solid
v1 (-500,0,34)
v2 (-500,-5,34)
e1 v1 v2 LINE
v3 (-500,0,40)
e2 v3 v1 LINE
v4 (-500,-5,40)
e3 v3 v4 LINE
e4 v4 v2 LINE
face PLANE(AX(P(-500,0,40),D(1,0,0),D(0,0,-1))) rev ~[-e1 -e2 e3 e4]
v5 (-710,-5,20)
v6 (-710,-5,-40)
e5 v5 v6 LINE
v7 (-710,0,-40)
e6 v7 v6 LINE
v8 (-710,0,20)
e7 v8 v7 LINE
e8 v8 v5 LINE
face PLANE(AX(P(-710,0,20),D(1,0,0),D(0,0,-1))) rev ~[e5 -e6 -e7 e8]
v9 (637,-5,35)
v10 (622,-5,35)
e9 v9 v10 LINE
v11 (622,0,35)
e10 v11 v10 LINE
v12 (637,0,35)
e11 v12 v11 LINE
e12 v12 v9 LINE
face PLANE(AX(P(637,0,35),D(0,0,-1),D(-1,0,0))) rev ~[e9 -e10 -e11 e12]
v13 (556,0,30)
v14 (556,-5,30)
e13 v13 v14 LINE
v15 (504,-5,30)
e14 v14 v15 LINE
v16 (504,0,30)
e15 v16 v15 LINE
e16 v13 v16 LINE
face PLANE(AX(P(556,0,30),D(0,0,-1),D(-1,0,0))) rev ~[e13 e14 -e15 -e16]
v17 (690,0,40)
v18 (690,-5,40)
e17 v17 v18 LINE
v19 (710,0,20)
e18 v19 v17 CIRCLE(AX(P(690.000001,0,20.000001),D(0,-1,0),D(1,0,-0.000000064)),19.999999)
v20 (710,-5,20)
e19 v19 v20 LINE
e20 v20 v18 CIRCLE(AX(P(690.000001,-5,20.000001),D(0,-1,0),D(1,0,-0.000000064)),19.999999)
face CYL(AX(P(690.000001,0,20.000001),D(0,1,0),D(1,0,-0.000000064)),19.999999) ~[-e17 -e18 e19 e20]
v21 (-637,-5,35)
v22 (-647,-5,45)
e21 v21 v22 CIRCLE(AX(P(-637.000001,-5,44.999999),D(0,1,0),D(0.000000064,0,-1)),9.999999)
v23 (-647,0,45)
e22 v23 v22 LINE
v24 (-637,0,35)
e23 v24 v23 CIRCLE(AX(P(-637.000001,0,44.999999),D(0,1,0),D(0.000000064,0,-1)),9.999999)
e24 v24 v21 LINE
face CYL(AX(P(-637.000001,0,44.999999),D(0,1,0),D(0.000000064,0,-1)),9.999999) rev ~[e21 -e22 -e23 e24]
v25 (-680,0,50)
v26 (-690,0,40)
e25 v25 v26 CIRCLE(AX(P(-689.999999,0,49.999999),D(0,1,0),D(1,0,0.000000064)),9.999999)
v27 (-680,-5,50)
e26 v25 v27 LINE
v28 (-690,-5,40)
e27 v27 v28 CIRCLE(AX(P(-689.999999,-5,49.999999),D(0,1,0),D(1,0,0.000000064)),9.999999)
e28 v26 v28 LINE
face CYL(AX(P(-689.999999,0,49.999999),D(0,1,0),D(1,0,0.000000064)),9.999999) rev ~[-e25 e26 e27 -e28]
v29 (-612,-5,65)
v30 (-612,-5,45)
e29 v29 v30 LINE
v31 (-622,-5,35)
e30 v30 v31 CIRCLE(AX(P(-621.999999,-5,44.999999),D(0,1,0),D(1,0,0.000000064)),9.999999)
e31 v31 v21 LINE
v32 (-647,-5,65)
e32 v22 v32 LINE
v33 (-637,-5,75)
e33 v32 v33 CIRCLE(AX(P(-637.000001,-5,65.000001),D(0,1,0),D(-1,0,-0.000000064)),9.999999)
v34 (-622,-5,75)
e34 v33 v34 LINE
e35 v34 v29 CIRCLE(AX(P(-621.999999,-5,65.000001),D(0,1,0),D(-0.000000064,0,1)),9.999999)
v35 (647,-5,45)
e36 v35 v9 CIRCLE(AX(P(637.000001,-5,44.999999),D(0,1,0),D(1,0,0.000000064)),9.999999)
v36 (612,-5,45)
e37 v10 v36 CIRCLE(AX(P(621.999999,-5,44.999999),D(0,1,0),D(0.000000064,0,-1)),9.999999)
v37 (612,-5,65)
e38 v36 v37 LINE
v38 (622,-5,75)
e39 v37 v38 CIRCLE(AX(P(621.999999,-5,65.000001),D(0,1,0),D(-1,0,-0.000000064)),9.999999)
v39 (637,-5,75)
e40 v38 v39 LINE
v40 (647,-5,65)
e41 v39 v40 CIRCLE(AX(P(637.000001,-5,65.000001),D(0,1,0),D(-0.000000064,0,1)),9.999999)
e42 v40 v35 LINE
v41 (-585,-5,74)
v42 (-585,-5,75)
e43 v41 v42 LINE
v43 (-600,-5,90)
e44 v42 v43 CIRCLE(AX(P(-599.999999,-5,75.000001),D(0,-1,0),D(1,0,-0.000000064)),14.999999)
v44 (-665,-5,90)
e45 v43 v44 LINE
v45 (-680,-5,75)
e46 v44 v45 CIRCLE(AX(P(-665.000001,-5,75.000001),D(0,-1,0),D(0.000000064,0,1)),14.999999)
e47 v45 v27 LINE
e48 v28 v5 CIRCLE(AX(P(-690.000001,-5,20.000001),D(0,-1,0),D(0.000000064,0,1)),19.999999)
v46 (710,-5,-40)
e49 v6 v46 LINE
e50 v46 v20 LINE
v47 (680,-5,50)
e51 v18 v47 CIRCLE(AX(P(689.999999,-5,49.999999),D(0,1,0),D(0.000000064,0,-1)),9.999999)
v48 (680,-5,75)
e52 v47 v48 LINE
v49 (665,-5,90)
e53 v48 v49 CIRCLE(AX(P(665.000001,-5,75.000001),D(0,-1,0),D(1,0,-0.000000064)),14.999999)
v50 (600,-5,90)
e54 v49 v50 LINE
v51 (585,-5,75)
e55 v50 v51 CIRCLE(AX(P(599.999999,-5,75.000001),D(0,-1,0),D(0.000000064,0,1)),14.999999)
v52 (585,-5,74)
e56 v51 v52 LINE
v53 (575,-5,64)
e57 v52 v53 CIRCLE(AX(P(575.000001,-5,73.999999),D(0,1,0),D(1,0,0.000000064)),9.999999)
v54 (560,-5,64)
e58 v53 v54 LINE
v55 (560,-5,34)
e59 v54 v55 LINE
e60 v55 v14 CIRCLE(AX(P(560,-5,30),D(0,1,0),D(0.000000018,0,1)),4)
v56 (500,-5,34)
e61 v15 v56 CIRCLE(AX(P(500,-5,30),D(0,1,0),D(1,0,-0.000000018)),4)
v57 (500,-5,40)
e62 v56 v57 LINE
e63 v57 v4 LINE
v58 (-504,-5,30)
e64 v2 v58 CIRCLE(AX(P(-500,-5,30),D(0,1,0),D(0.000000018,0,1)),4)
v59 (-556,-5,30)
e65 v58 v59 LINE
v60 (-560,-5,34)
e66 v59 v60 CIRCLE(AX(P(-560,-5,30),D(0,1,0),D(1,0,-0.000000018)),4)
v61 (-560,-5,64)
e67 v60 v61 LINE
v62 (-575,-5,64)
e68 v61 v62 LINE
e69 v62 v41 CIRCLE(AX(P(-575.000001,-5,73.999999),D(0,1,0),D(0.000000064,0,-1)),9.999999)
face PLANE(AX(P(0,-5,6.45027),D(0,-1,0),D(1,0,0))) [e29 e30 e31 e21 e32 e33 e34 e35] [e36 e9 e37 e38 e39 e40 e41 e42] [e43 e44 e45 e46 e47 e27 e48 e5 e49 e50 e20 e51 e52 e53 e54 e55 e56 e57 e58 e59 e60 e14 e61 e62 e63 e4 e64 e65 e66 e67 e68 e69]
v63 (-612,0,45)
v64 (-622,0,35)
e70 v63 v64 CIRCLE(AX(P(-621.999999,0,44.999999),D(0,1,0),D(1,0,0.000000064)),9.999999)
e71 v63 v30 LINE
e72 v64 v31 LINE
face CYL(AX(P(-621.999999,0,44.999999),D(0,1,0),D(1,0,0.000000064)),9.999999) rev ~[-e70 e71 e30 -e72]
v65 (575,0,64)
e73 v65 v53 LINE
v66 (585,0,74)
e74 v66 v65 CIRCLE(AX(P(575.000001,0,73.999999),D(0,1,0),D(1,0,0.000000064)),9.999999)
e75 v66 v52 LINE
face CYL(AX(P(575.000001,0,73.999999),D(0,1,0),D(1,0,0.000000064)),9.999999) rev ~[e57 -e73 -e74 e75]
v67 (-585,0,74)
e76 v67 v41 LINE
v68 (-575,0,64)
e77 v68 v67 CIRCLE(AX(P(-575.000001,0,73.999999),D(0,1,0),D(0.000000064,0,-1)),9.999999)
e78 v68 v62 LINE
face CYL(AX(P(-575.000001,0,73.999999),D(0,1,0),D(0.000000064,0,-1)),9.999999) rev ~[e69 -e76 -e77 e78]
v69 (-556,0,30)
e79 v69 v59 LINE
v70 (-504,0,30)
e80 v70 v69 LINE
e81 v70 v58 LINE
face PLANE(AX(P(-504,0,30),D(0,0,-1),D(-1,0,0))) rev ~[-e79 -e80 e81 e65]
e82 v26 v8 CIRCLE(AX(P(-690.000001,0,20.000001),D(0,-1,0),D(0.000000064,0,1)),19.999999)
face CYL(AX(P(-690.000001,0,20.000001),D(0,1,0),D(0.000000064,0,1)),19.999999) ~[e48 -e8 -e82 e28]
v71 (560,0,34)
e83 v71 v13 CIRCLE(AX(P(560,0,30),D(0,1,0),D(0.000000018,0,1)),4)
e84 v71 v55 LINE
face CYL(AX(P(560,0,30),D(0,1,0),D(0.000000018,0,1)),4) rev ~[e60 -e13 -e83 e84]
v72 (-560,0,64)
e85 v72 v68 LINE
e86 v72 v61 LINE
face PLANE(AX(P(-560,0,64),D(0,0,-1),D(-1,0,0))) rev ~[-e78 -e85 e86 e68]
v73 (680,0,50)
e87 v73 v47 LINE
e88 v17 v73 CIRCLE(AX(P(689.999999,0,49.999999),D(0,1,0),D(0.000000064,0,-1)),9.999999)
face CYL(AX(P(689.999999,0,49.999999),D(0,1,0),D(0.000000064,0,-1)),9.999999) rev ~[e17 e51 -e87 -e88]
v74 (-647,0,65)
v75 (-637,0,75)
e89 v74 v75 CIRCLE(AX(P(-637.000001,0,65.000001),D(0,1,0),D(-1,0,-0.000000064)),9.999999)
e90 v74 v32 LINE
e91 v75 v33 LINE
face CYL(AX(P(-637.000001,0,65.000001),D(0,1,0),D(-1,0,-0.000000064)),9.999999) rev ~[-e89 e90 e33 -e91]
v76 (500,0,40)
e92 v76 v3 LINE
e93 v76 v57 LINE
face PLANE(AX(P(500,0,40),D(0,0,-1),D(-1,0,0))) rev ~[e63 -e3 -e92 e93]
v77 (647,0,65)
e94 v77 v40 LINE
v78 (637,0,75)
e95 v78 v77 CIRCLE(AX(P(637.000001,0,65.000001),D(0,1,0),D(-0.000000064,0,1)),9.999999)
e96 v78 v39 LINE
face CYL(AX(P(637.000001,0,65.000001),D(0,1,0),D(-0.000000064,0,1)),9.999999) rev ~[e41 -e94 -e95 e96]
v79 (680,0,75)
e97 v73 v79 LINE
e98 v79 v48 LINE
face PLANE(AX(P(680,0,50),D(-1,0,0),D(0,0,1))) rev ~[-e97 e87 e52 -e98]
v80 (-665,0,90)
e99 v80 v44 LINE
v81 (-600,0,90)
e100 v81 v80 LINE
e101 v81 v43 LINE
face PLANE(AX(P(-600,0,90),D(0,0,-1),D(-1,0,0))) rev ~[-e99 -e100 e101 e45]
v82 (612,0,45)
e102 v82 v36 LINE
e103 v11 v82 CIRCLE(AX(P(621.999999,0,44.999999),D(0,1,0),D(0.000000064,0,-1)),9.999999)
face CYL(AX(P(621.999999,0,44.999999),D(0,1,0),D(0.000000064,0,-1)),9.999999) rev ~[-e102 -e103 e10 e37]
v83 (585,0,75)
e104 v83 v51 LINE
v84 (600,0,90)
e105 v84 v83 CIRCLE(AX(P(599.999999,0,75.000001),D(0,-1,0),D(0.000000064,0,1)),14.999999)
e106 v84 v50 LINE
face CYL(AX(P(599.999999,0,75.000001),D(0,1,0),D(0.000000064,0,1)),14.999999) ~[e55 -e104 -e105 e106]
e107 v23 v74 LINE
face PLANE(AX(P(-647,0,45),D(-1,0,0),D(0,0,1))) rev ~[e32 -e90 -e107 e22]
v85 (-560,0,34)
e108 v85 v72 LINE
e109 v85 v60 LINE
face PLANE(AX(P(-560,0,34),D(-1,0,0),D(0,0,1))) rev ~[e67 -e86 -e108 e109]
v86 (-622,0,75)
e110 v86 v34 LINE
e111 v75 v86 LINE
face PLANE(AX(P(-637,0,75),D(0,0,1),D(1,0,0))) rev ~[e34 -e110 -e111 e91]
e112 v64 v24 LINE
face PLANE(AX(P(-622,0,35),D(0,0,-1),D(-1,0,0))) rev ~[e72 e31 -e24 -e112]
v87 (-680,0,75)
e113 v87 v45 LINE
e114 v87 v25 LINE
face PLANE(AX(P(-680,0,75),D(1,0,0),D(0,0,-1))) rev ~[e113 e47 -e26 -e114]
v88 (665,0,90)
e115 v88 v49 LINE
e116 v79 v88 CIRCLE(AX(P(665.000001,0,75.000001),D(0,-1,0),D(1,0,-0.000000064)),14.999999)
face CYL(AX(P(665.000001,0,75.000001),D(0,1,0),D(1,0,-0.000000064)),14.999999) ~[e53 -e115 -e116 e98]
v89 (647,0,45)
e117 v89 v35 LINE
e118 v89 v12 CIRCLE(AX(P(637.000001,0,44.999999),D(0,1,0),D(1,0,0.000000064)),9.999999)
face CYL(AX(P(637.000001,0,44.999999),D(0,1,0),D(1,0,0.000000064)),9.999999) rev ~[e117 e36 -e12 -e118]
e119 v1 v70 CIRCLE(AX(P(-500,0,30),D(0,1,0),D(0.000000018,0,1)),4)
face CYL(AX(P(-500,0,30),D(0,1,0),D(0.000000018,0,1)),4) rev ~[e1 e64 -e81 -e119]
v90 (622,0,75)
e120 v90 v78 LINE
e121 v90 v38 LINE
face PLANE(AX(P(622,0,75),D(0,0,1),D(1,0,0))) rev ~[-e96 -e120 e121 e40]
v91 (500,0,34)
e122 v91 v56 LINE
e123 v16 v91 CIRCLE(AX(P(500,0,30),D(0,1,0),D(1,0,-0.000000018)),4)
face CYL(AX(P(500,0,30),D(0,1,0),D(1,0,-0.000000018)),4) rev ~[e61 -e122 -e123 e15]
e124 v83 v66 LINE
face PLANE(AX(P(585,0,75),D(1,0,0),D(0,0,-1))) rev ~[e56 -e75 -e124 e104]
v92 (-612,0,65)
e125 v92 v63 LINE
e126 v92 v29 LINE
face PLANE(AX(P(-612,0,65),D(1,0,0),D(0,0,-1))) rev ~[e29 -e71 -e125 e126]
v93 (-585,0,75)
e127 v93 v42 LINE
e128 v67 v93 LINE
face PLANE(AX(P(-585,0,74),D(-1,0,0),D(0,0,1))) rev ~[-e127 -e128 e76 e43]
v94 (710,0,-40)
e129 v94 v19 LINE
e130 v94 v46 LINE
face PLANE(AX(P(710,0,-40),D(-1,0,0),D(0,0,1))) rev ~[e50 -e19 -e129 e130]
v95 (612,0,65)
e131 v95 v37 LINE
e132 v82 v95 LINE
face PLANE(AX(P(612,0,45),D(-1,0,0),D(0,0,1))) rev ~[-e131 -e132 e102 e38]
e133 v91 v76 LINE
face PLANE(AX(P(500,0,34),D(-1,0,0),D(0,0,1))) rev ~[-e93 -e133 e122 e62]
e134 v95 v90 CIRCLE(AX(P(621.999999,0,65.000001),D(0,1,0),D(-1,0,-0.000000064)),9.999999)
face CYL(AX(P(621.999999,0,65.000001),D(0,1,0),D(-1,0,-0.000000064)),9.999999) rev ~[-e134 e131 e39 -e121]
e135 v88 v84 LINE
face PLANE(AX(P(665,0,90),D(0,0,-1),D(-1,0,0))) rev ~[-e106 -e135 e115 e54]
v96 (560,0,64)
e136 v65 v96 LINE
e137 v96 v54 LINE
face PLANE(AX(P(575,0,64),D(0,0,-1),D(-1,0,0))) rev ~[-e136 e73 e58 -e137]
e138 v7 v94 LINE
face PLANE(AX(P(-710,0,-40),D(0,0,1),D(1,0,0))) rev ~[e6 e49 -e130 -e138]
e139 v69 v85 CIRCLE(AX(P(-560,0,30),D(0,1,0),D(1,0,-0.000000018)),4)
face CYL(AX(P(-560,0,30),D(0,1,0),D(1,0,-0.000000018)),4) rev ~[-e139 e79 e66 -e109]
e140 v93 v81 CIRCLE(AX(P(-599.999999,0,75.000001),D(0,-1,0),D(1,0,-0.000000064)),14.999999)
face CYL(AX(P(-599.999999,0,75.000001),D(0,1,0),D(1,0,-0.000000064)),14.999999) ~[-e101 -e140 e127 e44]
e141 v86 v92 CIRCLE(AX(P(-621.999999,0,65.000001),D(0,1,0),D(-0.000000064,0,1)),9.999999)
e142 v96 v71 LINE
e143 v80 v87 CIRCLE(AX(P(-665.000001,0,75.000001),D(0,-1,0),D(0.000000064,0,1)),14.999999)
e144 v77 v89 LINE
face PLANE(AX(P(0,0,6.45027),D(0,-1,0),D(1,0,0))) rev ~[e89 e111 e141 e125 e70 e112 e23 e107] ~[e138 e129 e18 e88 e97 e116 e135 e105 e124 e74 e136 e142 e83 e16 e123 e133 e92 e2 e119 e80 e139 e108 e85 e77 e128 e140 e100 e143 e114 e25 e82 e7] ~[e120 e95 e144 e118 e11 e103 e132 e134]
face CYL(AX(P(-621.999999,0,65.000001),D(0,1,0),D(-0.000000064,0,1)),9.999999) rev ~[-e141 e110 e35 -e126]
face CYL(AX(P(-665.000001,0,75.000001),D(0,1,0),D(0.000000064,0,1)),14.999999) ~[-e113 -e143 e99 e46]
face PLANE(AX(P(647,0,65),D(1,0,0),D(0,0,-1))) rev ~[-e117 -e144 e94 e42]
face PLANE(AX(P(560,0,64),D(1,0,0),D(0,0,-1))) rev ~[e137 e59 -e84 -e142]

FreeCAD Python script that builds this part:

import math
import FreeCAD as App
import Part
import Sketcher

doc = App.newDocument("Part")
body = doc.addObject("PartDesign::Body", "Body")

sketch1 = body.newObject("Sketcher::SketchObject", "Sketch")
sketch1.AttachmentSupport = (doc.getObject("XZ_Plane"), [""])
sketch1.MapMode = "FlatFace"
sketch1.addGeometry([
    Part.LineSegment(App.Vector(-710, 20, 0), App.Vector(-710, -40, 0)),
    Part.LineSegment(App.Vector(-710, -40, 0), App.Vector(710, -40, 0)),
    Part.LineSegment(App.Vector(710, -40, 0), App.Vector(710, 20, 0)),
    Part.ArcOfCircle(Part.Circle(App.Vector(690.000001, 20.000001, 0), App.Vector(0, 0, 1), 19.999999), math.radians(-0.000004), math.radians(90.000004)),
    Part.ArcOfCircle(Part.Circle(App.Vector(689.999999, 49.999999, 0), App.Vector(0, 0, 1), 9.999999), math.radians(179.999996), math.radians(270.000004)),
    Part.LineSegment(App.Vector(680, 50, 0), App.Vector(680, 75, 0)),
    Part.ArcOfCircle(Part.Circle(App.Vector(665.000001, 75.000001, 0), App.Vector(0, 0, 1), 14.999999), math.radians(-0.000004), math.radians(90.000004)),
    Part.LineSegment(App.Vector(665, 90, 0), App.Vector(600, 90, 0)),
    Part.ArcOfCircle(Part.Circle(App.Vector(599.999999, 75.000001, 0), App.Vector(0, 0, 1), 14.999999), math.radians(89.999996), math.radians(180.000004)),
    Part.LineSegment(App.Vector(585, 75, 0), App.Vector(585, 74, 0)),
    Part.ArcOfCircle(Part.Circle(App.Vector(575.000001, 73.999999, 0), App.Vector(0, 0, 1), 9.999999), math.radians(-90.000004), math.radians(0.000004)),
    Part.LineSegment(App.Vector(575, 64, 0), App.Vector(560, 64, 0)),
    Part.LineSegment(App.Vector(560, 64, 0), App.Vector(560, 34, 0)),
    Part.ArcOfCircle(Part.Circle(App.Vector(560, 30, 0), App.Vector(0, 0, 1), 4), math.radians(-179.999999), math.radians(89.999999)),
    Part.LineSegment(App.Vector(556, 30, 0), App.Vector(504, 30, 0)),
    Part.ArcOfCircle(Part.Circle(App.Vector(500, 30, 0), App.Vector(0, 0, 1), 4), math.radians(90.000001), math.radians(359.999999)),
    Part.LineSegment(App.Vector(500, 34, 0), App.Vector(500, 40, 0)),
    Part.LineSegment(App.Vector(500, 40, 0), App.Vector(-500, 40, 0)),
    Part.LineSegment(App.Vector(-500, 40, 0), App.Vector(-500, 34, 0)),
    Part.ArcOfCircle(Part.Circle(App.Vector(-500, 30, 0), App.Vector(0, 0, 1), 4), math.radians(-179.999999), math.radians(89.999999)),
    Part.LineSegment(App.Vector(-504, 30, 0), App.Vector(-556, 30, 0)),
    Part.ArcOfCircle(Part.Circle(App.Vector(-560, 30, 0), App.Vector(0, 0, 1), 4), math.radians(90.000001), math.radians(359.999999)),
    Part.LineSegment(App.Vector(-560, 34, 0), App.Vector(-560, 64, 0)),
    Part.LineSegment(App.Vector(-560, 64, 0), App.Vector(-575, 64, 0)),
    Part.ArcOfCircle(Part.Circle(App.Vector(-575.000001, 73.999999, 0), App.Vector(0, 0, 1), 9.999999), math.radians(179.999996), math.radians(270.000004)),
    Part.LineSegment(App.Vector(-585, 74, 0), App.Vector(-585, 75, 0)),
    Part.ArcOfCircle(Part.Circle(App.Vector(-599.999999, 75.000001, 0), App.Vector(0, 0, 1), 14.999999), math.radians(-0.000004), math.radians(90.000004)),
    Part.LineSegment(App.Vector(-600, 90, 0), App.Vector(-665, 90, 0)),
    Part.ArcOfCircle(Part.Circle(App.Vector(-665.000001, 75.000001, 0), App.Vector(0, 0, 1), 14.999999), math.radians(89.999996), math.radians(180.000004)),
    Part.LineSegment(App.Vector(-680, 75, 0), App.Vector(-680, 50, 0)),
    Part.ArcOfCircle(Part.Circle(App.Vector(-689.999999, 49.999999, 0), App.Vector(0, 0, 1), 9.999999), math.radians(-90.000004), math.radians(0.000004)),
    Part.ArcOfCircle(Part.Circle(App.Vector(-690.000001, 20.000001, 0), App.Vector(0, 0, 1), 19.999999), math.radians(89.999996), math.radians(180.000004)),
    Part.LineSegment(App.Vector(-647, 45, 0), App.Vector(-647, 65, 0)),
    Part.ArcOfCircle(Part.Circle(App.Vector(-637.000001, 65.000001, 0), App.Vector(0, 0, 1), 9.999999), math.radians(89.999996), math.radians(180.000004)),
    Part.LineSegment(App.Vector(-637, 75, 0), App.Vector(-622, 75, 0)),
    Part.ArcOfCircle(Part.Circle(App.Vector(-621.999999, 65.000001, 0), App.Vector(0, 0, 1), 9.999999), math.radians(-0.000004), math.radians(90.000004)),
    Part.LineSegment(App.Vector(-612, 65, 0), App.Vector(-612, 45, 0)),
    Part.ArcOfCircle(Part.Circle(App.Vector(-621.999999, 44.999999, 0), App.Vector(0, 0, 1), 9.999999), math.radians(-90.000004), math.radians(0.000004)),
    Part.LineSegment(App.Vector(-622, 35, 0), App.Vector(-637, 35, 0)),
    Part.ArcOfCircle(Part.Circle(App.Vector(-637.000001, 44.999999, 0), App.Vector(0, 0, 1), 9.999999), math.radians(179.999996), math.radians(270.000004)),
    Part.ArcOfCircle(Part.Circle(App.Vector(621.999999, 65.000001, 0), App.Vector(0, 0, 1), 9.999999), math.radians(89.999996), math.radians(180.000004)),
    Part.LineSegment(App.Vector(622, 75, 0), App.Vector(637, 75, 0)),
    Part.ArcOfCircle(Part.Circle(App.Vector(637.000001, 65.000001, 0), App.Vector(0, 0, 1), 9.999999), math.radians(-0.000004), math.radians(90.000004)),
    Part.LineSegment(App.Vector(647, 65, 0), App.Vector(647, 45, 0)),
    Part.ArcOfCircle(Part.Circle(App.Vector(637.000001, 44.999999, 0), App.Vector(0, 0, 1), 9.999999), math.radians(-90.000004), math.radians(0.000004)),
    Part.LineSegment(App.Vector(637, 35, 0), App.Vector(622, 35, 0)),
    Part.ArcOfCircle(Part.Circle(App.Vector(621.999999, 44.999999, 0), App.Vector(0, 0, 1), 9.999999), math.radians(179.999996), math.radians(270.000004)),
    Part.LineSegment(App.Vector(612, 45, 0), App.Vector(612, 65, 0)),
], False)
sketch1.addConstraint([
    Sketcher.Constraint("Coincident", 0, 2, 1, 1),
    Sketcher.Constraint("Coincident", 1, 2, 2, 1),
    Sketcher.Constraint("Tangent", 2, 2, 3, 1),
    Sketcher.Constraint("Tangent", 3, 2, 4, 2),
    Sketcher.Constraint("Tangent", 4, 1, 5, 1),
    Sketcher.Constraint("Tangent", 5, 2, 6, 1),
    Sketcher.Constraint("Tangent", 6, 2, 7, 1),
    Sketcher.Constraint("Tangent", 7, 2, 8, 1),
    Sketcher.Constraint("Tangent", 8, 2, 9, 1),
    Sketcher.Constraint("Tangent", 9, 2, 10, 2),
    Sketcher.Constraint("Tangent", 10, 1, 11, 1),
    Sketcher.Constraint("Coincident", 11, 2, 12, 1),
    Sketcher.Constraint("Coincident", 12, 2, 13, 2),
    Sketcher.Constraint("Coincident", 13, 1, 14, 1),
    Sketcher.Constraint("Coincident", 14, 2, 15, 2),
    Sketcher.Constraint("Coincident", 15, 1, 16, 1),
    Sketcher.Constraint("Coincident", 16, 2, 17, 1),
    Sketcher.Constraint("Coincident", 17, 2, 18, 1),
    Sketcher.Constraint("Coincident", 18, 2, 19, 2),
    Sketcher.Constraint("Coincident", 19, 1, 20, 1),
    Sketcher.Constraint("Coincident", 20, 2, 21, 2),
    Sketcher.Constraint("Coincident", 21, 1, 22, 1),
    Sketcher.Constraint("Coincident", 22, 2, 23, 1),
    Sketcher.Constraint("Tangent", 23, 2, 24, 2),
    Sketcher.Constraint("Tangent", 24, 1, 25, 1),
    Sketcher.Constraint("Tangent", 25, 2, 26, 1),
    Sketcher.Constraint("Tangent", 26, 2, 27, 1),
    Sketcher.Constraint("Tangent", 27, 2, 28, 1),
    Sketcher.Constraint("Tangent", 28, 2, 29, 1),
    Sketcher.Constraint("Tangent", 29, 2, 30, 2),
    Sketcher.Constraint("Tangent", 30, 1, 31, 1),
    Sketcher.Constraint("Tangent", 31, 2, 0, 1),
    Sketcher.Constraint("Tangent", 32, 2, 33, 2),
    Sketcher.Constraint("Tangent", 33, 1, 34, 1),
    Sketcher.Constraint("Tangent", 34, 2, 35, 2),
    Sketcher.Constraint("Tangent", 35, 1, 36, 1),
    Sketcher.Constraint("Tangent", 36, 2, 37, 2),
    Sketcher.Constraint("Tangent", 37, 1, 38, 1),
    Sketcher.Constraint("Tangent", 38, 2, 39, 2),
    Sketcher.Constraint("Tangent", 39, 1, 32, 1),
    Sketcher.Constraint("Tangent", 40, 1, 41, 1),
    Sketcher.Constraint("Tangent", 41, 2, 42, 2),
    Sketcher.Constraint("Tangent", 42, 1, 43, 1),
    Sketcher.Constraint("Tangent", 43, 2, 44, 2),
    Sketcher.Constraint("Tangent", 44, 1, 45, 1),
    Sketcher.Constraint("Tangent", 45, 2, 46, 2),
    Sketcher.Constraint("Tangent", 46, 1, 47, 1),
    Sketcher.Constraint("Tangent", 47, 2, 40, 2),
    Sketcher.Constraint("Vertical", 0),
    Sketcher.Constraint("Horizontal", 1),
    Sketcher.Constraint("Vertical", 2),
    Sketcher.Constraint("Vertical", 5),
    Sketcher.Constraint("Horizontal", 7),
    Sketcher.Constraint("Vertical", 9),
    Sketcher.Constraint("Horizontal", 11),
    Sketcher.Constraint("Vertical", 12),
    Sketcher.Constraint("Horizontal", 14),
    Sketcher.Constraint("Vertical", 16),
    Sketcher.Constraint("Horizontal", 17),
    Sketcher.Constraint("Vertical", 18),
    Sketcher.Constraint("Horizontal", 20),
    Sketcher.Constraint("Vertical", 22),
    Sketcher.Constraint("Horizontal", 23),
    Sketcher.Constraint("Vertical", 25),
    Sketcher.Constraint("Horizontal", 27),
    Sketcher.Constraint("Vertical", 29),
    Sketcher.Constraint("Vertical", 32),
    Sketcher.Constraint("Horizontal", 34),
    Sketcher.Constraint("Vertical", 36),
    Sketcher.Constraint("Horizontal", 38),
    Sketcher.Constraint("Horizontal", 41),
    Sketcher.Constraint("Vertical", 43),
    Sketcher.Constraint("Horizontal", 45),
    Sketcher.Constraint("Vertical", 47),
    Sketcher.Constraint("Equal", 6, 8),
    Sketcher.Constraint("Equal", 4, 10),
    Sketcher.Constraint("Equal", 13, 15),
    Sketcher.Constraint("Equal", 15, 19),
    Sketcher.Constraint("Equal", 19, 21),
    Sketcher.Constraint("Equal", 10, 24),
    Sketcher.Constraint("Equal", 8, 26),
    Sketcher.Constraint("Equal", 26, 28),
    Sketcher.Constraint("Equal", 24, 30),
    Sketcher.Constraint("Equal", 3, 31),
    Sketcher.Constraint("Equal", 30, 33),
    Sketcher.Constraint("Equal", 33, 35),
    Sketcher.Constraint("Equal", 35, 37),
    Sketcher.Constraint("Equal", 37, 39),
    Sketcher.Constraint("Equal", 39, 40),
    Sketcher.Constraint("Equal", 40, 42),
    Sketcher.Constraint("Equal", 42, 44),
    Sketcher.Constraint("Equal", 44, 46),
    Sketcher.Constraint("Symmetric", 15, 3, 19, 3, -2),
    Sketcher.Constraint("Symmetric", 13, 3, 21, 3, -2),
    Sketcher.Constraint("Symmetric", 10, 3, 24, 3, -2),
    Sketcher.Constraint("Symmetric", 6, 3, 28, 3, -2),
    Sketcher.Constraint("Symmetric", 3, 3, 31, 3, -2),
    Sketcher.Constraint("Symmetric", 35, 3, 40, 3, -2),
    Sketcher.Constraint("Symmetric", 39, 3, 44, 3, -2),
    Sketcher.Constraint("Horizontal", 13, 3, 15, 3),
    Sketcher.Constraint("Horizontal", 21, 3, 13, 1),
    Sketcher.Constraint("Horizontal", 3, 2, 16, 2),
    Sketcher.Constraint("Horizontal", 14, 2, 19, 1),
    Sketcher.Constraint("Horizontal", 28, 2, 33, 1),
    Sketcher.Constraint("Vertical", 3, 3, 4, 3),
    Sketcher.Constraint("Vertical", 13, 3, 11, 2),
    Sketcher.Constraint("Vertical", 19, 3, 17, 2),
    Sketcher.Constraint("Equal", 11, 23),
    Sketcher.Constraint("Equal", 23, 34),
    Sketcher.Constraint("Radius", 3, 19.999999),
    Sketcher.Constraint("Radius", 4, 9.999999),
    Sketcher.Constraint("Radius", 6, 14.999999),
    Sketcher.Constraint("Radius", 13, 4.0),
    Sketcher.Constraint("DistanceX", 1, 1, 1, 2, 1420.0),
    Sketcher.Constraint("DistanceX", 7, 2, 7, 1, 65.0),
    Sketcher.Constraint("DistanceX", 11, 2, 11, 1, 15.0),
    Sketcher.Constraint("DistanceX", 14, 2, 14, 1, 52.0),
    Sketcher.Constraint("DistanceX", 17, 2, 17, 1, 1000.0),
    Sketcher.Constraint("DistanceY", 0, 2, 0, 1, 60.0),
    Sketcher.Constraint("DistanceY", 5, 1, 5, 2, 25.0),
    Sketcher.Constraint("DistanceY", 9, 2, 9, 1, 1.0),
    Sketcher.Constraint("DistanceY", 12, 2, 12, 1, 30.0),
    Sketcher.Constraint("DistanceY", 32, 1, 32, 2, 20.0),
    Sketcher.Constraint("DistanceY", -1, 1, 3, 3, 20.000001),
    Sketcher.Constraint("DistanceX", 33, 3, -1, 1, 637.000001),
])
pad1 = body.newObject("PartDesign::Pad", "Pad")
pad1.Profile = sketch1
pad1.Length = 5

doc.recompute()
